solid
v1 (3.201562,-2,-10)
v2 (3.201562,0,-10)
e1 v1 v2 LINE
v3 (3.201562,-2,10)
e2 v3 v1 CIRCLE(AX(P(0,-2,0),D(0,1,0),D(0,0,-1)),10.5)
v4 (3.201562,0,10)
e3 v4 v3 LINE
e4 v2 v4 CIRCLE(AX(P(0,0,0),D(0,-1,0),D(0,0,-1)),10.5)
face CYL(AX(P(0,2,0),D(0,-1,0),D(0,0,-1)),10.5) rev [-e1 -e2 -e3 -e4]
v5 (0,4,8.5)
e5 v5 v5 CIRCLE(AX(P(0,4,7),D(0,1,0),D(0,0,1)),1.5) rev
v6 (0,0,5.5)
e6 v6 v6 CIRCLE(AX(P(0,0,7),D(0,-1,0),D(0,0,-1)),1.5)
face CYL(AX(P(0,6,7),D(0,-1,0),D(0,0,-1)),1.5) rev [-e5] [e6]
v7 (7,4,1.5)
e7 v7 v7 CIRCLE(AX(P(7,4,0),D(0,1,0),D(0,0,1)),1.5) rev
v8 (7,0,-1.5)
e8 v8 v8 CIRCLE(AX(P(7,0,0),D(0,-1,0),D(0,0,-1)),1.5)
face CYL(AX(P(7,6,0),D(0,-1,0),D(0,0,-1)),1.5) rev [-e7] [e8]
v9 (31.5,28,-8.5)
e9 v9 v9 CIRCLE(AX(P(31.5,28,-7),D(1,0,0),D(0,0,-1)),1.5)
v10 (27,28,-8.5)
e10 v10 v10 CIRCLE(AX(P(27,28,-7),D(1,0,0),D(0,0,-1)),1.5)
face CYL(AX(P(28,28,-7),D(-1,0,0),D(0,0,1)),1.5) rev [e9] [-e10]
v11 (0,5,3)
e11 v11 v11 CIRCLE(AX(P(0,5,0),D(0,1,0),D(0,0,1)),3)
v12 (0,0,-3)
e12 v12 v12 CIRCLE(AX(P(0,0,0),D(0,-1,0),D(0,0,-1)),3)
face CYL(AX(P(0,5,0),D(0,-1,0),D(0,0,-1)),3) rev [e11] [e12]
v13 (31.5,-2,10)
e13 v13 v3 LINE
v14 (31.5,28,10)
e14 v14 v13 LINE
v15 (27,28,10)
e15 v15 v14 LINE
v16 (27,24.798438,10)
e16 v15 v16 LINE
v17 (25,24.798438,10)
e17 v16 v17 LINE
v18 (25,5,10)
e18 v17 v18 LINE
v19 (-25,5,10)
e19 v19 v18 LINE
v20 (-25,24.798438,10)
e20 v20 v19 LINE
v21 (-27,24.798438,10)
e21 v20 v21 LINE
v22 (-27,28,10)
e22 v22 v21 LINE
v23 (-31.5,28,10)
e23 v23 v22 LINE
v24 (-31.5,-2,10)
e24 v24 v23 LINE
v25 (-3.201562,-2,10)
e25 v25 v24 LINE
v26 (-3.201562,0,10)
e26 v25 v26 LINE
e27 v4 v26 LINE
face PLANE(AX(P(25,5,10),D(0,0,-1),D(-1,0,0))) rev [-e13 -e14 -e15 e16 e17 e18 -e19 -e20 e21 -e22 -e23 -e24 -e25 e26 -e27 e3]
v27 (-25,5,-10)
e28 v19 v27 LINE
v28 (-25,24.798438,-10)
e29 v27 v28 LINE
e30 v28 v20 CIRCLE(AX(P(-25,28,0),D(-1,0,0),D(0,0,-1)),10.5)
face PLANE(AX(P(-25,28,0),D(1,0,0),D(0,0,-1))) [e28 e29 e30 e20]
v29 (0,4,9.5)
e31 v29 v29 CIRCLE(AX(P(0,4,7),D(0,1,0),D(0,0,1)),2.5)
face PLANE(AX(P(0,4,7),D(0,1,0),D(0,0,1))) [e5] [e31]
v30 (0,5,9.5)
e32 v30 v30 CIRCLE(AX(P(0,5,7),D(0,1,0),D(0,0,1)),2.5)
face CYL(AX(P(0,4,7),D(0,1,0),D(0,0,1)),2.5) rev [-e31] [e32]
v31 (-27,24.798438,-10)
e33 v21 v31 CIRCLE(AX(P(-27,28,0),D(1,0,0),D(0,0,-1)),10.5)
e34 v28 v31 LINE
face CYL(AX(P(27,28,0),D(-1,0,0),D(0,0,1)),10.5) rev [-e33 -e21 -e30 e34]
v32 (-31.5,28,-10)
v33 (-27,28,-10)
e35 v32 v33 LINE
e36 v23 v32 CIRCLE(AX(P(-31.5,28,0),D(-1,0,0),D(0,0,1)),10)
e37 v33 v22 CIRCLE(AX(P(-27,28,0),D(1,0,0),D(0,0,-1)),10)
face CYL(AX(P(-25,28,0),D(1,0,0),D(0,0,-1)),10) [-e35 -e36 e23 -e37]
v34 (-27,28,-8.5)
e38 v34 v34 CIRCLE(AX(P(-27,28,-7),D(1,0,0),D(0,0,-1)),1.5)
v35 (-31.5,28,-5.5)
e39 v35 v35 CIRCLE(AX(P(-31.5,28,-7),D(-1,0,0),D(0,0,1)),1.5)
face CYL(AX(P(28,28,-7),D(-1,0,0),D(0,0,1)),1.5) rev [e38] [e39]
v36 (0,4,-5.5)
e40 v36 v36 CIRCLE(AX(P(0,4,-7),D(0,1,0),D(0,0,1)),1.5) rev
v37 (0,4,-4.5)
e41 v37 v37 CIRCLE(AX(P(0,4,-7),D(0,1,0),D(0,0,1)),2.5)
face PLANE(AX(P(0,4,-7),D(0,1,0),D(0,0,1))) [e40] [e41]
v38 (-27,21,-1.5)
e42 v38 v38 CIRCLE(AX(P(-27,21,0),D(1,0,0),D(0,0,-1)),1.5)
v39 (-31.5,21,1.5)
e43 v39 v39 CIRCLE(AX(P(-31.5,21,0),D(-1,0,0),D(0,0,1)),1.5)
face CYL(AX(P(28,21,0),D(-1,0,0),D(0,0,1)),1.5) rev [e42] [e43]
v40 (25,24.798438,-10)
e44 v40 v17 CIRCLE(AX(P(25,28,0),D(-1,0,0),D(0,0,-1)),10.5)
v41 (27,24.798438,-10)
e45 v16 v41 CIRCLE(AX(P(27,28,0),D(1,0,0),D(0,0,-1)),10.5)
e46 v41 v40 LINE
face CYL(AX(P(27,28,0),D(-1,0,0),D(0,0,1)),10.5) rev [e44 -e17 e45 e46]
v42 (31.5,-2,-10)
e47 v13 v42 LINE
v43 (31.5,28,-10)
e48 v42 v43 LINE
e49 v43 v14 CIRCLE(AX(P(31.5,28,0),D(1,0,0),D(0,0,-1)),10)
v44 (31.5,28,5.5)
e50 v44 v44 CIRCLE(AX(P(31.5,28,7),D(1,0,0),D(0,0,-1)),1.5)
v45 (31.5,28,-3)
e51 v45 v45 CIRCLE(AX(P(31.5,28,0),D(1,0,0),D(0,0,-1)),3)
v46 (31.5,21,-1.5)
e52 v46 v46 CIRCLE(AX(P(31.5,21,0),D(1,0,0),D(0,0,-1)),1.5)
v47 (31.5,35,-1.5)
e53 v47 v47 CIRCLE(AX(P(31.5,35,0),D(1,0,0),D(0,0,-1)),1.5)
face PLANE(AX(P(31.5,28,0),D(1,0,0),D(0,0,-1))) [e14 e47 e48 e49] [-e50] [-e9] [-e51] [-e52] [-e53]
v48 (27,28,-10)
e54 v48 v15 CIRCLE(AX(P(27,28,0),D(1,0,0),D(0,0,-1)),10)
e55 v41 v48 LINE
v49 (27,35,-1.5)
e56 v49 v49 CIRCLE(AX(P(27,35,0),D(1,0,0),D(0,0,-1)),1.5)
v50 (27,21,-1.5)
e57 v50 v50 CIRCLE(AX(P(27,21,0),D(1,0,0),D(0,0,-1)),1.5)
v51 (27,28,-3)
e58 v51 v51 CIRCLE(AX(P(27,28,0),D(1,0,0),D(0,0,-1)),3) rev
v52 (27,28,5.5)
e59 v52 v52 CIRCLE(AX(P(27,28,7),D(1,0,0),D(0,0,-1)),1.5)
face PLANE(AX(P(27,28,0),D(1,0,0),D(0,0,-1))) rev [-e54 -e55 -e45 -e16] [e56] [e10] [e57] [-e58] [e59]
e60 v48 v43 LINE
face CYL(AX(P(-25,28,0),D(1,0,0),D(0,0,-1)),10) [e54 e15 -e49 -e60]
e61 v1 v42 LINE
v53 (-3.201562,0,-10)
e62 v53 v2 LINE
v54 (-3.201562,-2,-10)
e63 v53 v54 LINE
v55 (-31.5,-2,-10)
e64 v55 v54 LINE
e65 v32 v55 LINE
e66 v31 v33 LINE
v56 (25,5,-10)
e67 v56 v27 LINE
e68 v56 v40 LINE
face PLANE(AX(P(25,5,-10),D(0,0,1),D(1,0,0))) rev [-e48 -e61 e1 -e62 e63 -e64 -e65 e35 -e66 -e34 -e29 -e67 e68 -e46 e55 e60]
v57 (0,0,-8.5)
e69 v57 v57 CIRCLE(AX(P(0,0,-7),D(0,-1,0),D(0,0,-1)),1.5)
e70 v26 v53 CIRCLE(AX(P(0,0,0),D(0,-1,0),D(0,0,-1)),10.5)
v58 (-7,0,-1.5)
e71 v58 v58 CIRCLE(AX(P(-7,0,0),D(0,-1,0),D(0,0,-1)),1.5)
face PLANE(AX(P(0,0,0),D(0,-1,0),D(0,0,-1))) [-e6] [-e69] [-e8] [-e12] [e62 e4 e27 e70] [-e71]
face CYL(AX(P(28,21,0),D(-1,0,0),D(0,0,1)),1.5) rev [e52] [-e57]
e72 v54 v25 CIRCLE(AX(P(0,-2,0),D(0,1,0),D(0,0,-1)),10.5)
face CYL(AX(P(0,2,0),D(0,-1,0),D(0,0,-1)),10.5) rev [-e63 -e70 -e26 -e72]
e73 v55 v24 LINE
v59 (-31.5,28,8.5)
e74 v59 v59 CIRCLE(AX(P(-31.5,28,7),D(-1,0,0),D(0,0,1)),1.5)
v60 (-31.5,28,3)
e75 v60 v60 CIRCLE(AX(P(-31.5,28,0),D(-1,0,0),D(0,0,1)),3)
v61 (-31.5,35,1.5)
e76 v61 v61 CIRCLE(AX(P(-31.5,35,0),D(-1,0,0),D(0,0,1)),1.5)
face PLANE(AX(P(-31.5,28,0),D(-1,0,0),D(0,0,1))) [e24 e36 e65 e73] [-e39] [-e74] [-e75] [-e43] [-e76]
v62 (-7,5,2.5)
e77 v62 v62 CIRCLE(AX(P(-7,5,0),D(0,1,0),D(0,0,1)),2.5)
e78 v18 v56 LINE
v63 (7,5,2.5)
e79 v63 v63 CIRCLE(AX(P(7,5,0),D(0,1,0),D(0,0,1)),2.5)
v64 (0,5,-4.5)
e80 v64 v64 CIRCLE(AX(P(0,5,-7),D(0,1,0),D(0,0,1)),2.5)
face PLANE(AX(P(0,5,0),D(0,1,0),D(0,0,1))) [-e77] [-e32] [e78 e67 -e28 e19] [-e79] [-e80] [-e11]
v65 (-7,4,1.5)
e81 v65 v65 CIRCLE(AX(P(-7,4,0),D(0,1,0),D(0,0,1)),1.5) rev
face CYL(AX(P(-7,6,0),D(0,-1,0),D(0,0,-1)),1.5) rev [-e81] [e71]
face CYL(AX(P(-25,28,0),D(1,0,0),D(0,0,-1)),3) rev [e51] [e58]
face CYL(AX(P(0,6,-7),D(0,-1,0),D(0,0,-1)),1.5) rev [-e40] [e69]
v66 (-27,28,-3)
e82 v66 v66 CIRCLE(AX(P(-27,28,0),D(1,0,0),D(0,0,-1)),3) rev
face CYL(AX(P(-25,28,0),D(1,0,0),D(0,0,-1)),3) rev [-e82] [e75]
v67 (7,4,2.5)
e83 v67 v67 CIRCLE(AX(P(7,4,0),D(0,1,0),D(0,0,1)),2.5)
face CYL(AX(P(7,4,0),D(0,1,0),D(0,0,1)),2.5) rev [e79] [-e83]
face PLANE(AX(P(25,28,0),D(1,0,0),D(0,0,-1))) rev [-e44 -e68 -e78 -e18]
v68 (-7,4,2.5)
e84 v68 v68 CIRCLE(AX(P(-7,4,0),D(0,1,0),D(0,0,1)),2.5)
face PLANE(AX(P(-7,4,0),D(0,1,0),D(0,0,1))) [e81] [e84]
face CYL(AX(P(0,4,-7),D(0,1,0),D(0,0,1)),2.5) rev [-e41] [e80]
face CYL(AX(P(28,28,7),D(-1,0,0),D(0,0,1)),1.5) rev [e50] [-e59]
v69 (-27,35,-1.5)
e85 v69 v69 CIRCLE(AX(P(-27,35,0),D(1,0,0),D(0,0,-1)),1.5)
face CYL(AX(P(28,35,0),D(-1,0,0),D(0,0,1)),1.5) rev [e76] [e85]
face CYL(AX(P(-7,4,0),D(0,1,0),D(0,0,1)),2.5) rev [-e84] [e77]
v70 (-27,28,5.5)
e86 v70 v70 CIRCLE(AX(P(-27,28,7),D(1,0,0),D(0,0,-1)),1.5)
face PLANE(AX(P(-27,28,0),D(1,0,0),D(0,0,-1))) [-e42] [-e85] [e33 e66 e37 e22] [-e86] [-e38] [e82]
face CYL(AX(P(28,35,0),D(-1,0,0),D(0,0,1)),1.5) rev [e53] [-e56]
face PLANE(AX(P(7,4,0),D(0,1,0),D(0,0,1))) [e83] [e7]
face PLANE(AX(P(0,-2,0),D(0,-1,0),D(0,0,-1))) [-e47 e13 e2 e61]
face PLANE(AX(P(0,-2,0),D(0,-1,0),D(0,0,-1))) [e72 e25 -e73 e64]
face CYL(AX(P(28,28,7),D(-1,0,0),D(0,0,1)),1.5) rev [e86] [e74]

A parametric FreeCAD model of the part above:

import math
import FreeCAD as App
import Part
import Sketcher

V = App.Vector
Q = App.Units.Quantity


def add_polygon(sketch, points):
    """Adds a closed chain of lines whose ends are joined by coincident constraints."""
    first, n = sketch.GeometryCount, len(points)
    for a, b in zip(points, points[1:] + points[:1]):
        sketch.addGeometry(Part.LineSegment(App.Vector(*a, 0), App.Vector(*b, 0)), False)
    for i in range(n):
        sketch.addConstraint(Sketcher.Constraint("Coincident", first + i, 2, first + (i + 1) % n, 1))

doc = App.newDocument("Part")
params = doc.addObject("Spreadsheet::Sheet", "Params")
for row, (alias, value) in enumerate([
    ("sketch1_diameter", "6 mm"),
    ("sketch1_width", "50 mm"),
    ("sketch1_height", "20 mm"),
    ("pad1_length", "5 mm"),
    ("sketch2_diameter", "21 mm"),
    ("pocket1_length", "2 mm"),
    ("sketch3_diameter", "3 mm"),
    ("pocket2_length", "4 mm"),
    ("sketch4_diameter", "5 mm"),
    ("pocket3_length", "1 mm"),
    ("sketch5_width", "5 mm"),
    ("sketch5_height", "20 mm"),
    ("pad2_length", "33 mm"),
    ("sketch6_diameter", "6 mm"),
    ("sketch6_radius", "10 mm"),
    ("pocket4_length", "50 mm"),
    ("sketch7_diameter", "21 mm"),
    ("pocket5_length", "42 mm"),
    ("pocket5_length2", "2 mm"),
    ("sketch8_diameter", "3 mm"),
    ("sketch9_diameter", "3 mm"),
    ("sketch9_diameter2", "6 mm"),
    ("sketch9_radius", "10 mm"),
    ("sketch9_width", "28 mm"),
    ("pad3_length", "5 mm"),
    ("sketch10_diameter", "3 mm"),
    ("sketch10_diameter2", "6 mm"),
    ("sketch10_radius", "10 mm"),
    ("sketch10_width", "28 mm"),
    ("pad4_length", "5 mm"),
    ("sketch11_radius", "10.5 mm"),
    ("sketch11_height", "20 mm"),
    ("pocket7_length", "45 mm"),
    ("pocket7_length2", "5 mm"),
    ("sketch12_radius", "10 mm"),
    ("sketch12_radius2", "10.5 mm"),
    ("pocket8_length", "49 mm"),
    ("pocket8_length2", "5 mm"),
    ("sketch13_radius", "10.5 mm"),
    ("sketch13_height", "20 mm"),
    ("pad5_length", "2 mm"),
    ("sketch14_diameter", "3 mm"),
    ("sketch14_diameter2", "6 mm"),
    ("sketch14_radius", "10.5 mm"),
    ("pad6_length", "2 mm"),
    ("sketch15_diameter", "3 mm"),
    ("sketch15_diameter2", "6 mm"),
    ("sketch15_radius", "10 mm"),
    ("sketch15_width", "30 mm"),
    ("pad7_length", "1.5 mm"),
    ("sketch16_diameter", "3 mm"),
    ("sketch16_diameter2", "6 mm"),
    ("sketch16_radius", "10 mm"),
    ("sketch16_width", "30 mm"),
    ("pad8_length", "1.5 mm"),
], start=1):
    params.set(f"A{row}", alias)
    params.set(f"B{row}", "=" + value)
    params.setAlias(f"B{row}", alias)

body = doc.addObject("PartDesign::Body", "Body")

sketch1 = body.newObject("Sketcher::SketchObject", "Sketch")
sketch1.AttachmentSupport = (doc.getObject("XZ_Plane"), [""])
sketch1.MapMode = "FlatFace"
add_polygon(sketch1, [(-25, -10), (-25, 10), (25, 10), (25, -10)])
sketch1.addGeometry(Part.Circle(V(0, 0, 0), V(0, 0, 1), 3), False)
sketch1.addConstraint(Sketcher.Constraint("Vertical", 0))
sketch1.addConstraint(Sketcher.Constraint("Horizontal", 1))
sketch1.addConstraint(Sketcher.Constraint("Vertical", 2))
sketch1.addConstraint(Sketcher.Constraint("Horizontal", 3))
sketch1.addConstraint(Sketcher.Constraint("Coincident", 4, 3, -1, 1))
sketch1.addConstraint(Sketcher.Constraint("Symmetric", 0, 2, 2, 2, -1, 1))
sketch1.addConstraint(Sketcher.Constraint("Diameter", 4, Q("6 mm")))
sketch1.addConstraint(Sketcher.Constraint("DistanceX", 1, 1, 1, 2, Q("50 mm")))
sketch1.addConstraint(Sketcher.Constraint("DistanceY", 0, 1, 0, 2, Q("20 mm")))
sketch1.setExpression("Constraints[10]", "Params.sketch1_diameter")
sketch1.setExpression("Constraints[11]", "Params.sketch1_width")
sketch1.setExpression("Constraints[12]", "Params.sketch1_height")
pad1 = body.newObject("PartDesign::Pad", "Pad")
pad1.Profile = sketch1
pad1.setExpression("Length", "Params.pad1_length")
pad1.Reversed = True

sketch2 = body.newObject("Sketcher::SketchObject", "Sketch001")
sketch2.AttachmentSupport = (doc.getObject("XZ_Plane"), [""])
sketch2.MapMode = "FlatFace"
sketch2.addGeometry(Part.Circle(V(0, 0, 0), V(0, 0, 1), 10), False)
sketch2.addConstraint(Sketcher.Constraint("Coincident", 0, 3, -1, 1))
sketch2.addConstraint(Sketcher.Constraint("Diameter", 0, Q("21 mm")))
sketch2.setExpression("Constraints[1]", "Params.sketch2_diameter")
pocket1 = body.newObject("PartDesign::Pocket", "Pocket")
pocket1.Profile = sketch2
pocket1.setExpression("Length", "Params.pocket1_length")

sketch3 = body.newObject("Sketcher::SketchObject", "Sketch002")
sketch3.AttachmentSupport = (doc.getObject("XZ_Plane"), [""])
sketch3.MapMode = "FlatFace"
sketch3.AttachmentOffset = App.Placement(V(0, 0, -2), App.Rotation())
sketch3.addGeometry(Part.Circle(V(0, 7, 0), V(0, 0, 1), 1.5), False)
sketch3.addGeometry(Part.Circle(V(7, 0, 0), V(0, 0, 1), 1.5), False)
sketch3.addGeometry(Part.Circle(V(0, -7, 0), V(0, 0, 1), 1.5), False)
sketch3.addGeometry(Part.Circle(V(-7, 0, 0), V(0, 0, 1), 1.5), False)
sketch3.addConstraint(Sketcher.Constraint("Equal", 0, 1))
sketch3.addConstraint(Sketcher.Constraint("Equal", 1, 2))
sketch3.addConstraint(Sketcher.Constraint("Equal", 2, 3))
sketch3.addConstraint(Sketcher.Constraint("Symmetric", 0, 3, 2, 3, -1, 1))
sketch3.addConstraint(Sketcher.Constraint("Symmetric", 1, 3, 3, 3, -1, 1))
sketch3.addConstraint(Sketcher.Constraint("PointOnObject", 0, 3, -2))
sketch3.addConstraint(Sketcher.Constraint("PointOnObject", 1, 3, -1))
sketch3.addConstraint(Sketcher.Constraint("Diameter", 0, Q("3 mm")))
sketch3.addConstraint(Sketcher.Constraint("DistanceY", -1, 1, 0, 3, Q("7 mm")))
sketch3.addConstraint(Sketcher.Constraint("DistanceX", -1, 1, 1, 3, Q("7 mm")))
sketch3.setExpression("Constraints[7]", "Params.sketch3_diameter")
pocket2 = body.newObject("PartDesign::Pocket", "Pocket001")
pocket2.Profile = sketch3
pocket2.setExpression("Length", "Params.pocket2_length")

sketch4 = body.newObject("Sketcher::SketchObject", "Sketch003")
sketch4.AttachmentSupport = (doc.getObject("XZ_Plane"), [""])
sketch4.MapMode = "FlatFace"
sketch4.AttachmentOffset = App.Placement(V(0, 0, -5), App.Rotation())
sketch4.addGeometry(Part.Circle(V(0, -7, 0), V(0, 0, 1), 2.5), False)
sketch4.addGeometry(Part.Circle(V(7, 0, 0), V(0, 0, 1), 2.5), False)
sketch4.addGeometry(Part.Circle(V(0, 7, 0), V(0, 0, 1), 2.5), False)
sketch4.addGeometry(Part.Circle(V(-7, 0, 0), V(0, 0, 1), 2.5), False)
sketch4.addConstraint(Sketcher.Constraint("Equal", 0, 1))
sketch4.addConstraint(Sketcher.Constraint("Equal", 1, 2))
sketch4.addConstraint(Sketcher.Constraint("Equal", 2, 3))
sketch4.addConstraint(Sketcher.Constraint("Symmetric", 0, 3, 2, 3, -1, 1))
sketch4.addConstraint(Sketcher.Constraint("Symmetric", 1, 3, 3, 3, -1, 1))
sketch4.addConstraint(Sketcher.Constraint("PointOnObject", 0, 3, -2))
sketch4.addConstraint(Sketcher.Constraint("PointOnObject", 1, 3, -1))
sketch4.addConstraint(Sketcher.Constraint("Diameter", 0, Q("5 mm")))
sketch4.addConstraint(Sketcher.Constraint("DistanceY", 0, 3, -1, 1, Q("7 mm")))
sketch4.addConstraint(Sketcher.Constraint("DistanceX", -1, 1, 1, 3, Q("7 mm")))
sketch4.setExpression("Constraints[7]", "Params.sketch4_diameter")
pocket3 = body.newObject("PartDesign::Pocket", "Pocket002")
pocket3.Profile = sketch4
pocket3.setExpression("Length", "Params.pocket3_length")
pocket3.Reversed = True

sketch5 = body.newObject("Sketcher::SketchObject", "Sketch004")
sketch5.AttachmentSupport = (doc.getObject("XZ_Plane"), [""])
sketch5.MapMode = "FlatFace"
sketch5.AttachmentOffset = App.Placement(V(0, 0, -5), App.Rotation())
add_polygon(sketch5, [(20, -10), (20, 10), (25, 10), (25, -10)])
add_polygon(sketch5, [(-25, -10), (-25, 10), (-20, 10), (-20, -10)])
sketch5.addConstraint(Sketcher.Constraint("Vertical", 0))
sketch5.addConstraint(Sketcher.Constraint("Horizontal", 1))
sketch5.addConstraint(Sketcher.Constraint("Vertical", 2))
sketch5.addConstraint(Sketcher.Constraint("Horizontal", 3))
sketch5.addConstraint(Sketcher.Constraint("Vertical", 4))
sketch5.addConstraint(Sketcher.Constraint("Horizontal", 5))
sketch5.addConstraint(Sketcher.Constraint("Vertical", 6))
sketch5.addConstraint(Sketcher.Constraint("Horizontal", 7))
sketch5.addConstraint(Sketcher.Constraint("Symmetric", 2, 2, 4, 2, -1, 1))
sketch5.addConstraint(Sketcher.Constraint("Symmetric", 0, 2, 6, 2, -1, 1))
sketch5.addConstraint(Sketcher.Constraint("Horizontal", 1, 2, 4, 2))
sketch5.addConstraint(Sketcher.Constraint("DistanceX", 1, 1, 1, 2, Q("5 mm")))
sketch5.addConstraint(Sketcher.Constraint("DistanceY", 0, 1, 0, 2, Q("20 mm")))
sketch5.addConstraint(Sketcher.Constraint("DistanceX", -1, 1, 0, 2, Q("20 mm")))
sketch5.setExpression("Constraints[19]", "Params.sketch5_width")
sketch5.setExpression("Constraints[20]", "Params.sketch5_height")
pad2 = body.newObject("PartDesign::Pad", "Pad001")
pad2.Profile = sketch5
pad2.setExpression("Length", "Params.pad2_length")
pad2.Reversed = True

sketch6 = body.newObject("Sketcher::SketchObject", "Sketch005")
sketch6.AttachmentSupport = (doc.getObject("YZ_Plane"), [""])
sketch6.MapMode = "FlatFace"
sketch6.AttachmentOffset = App.Placement(V(0, 0, 25), App.Rotation())
sketch6.addGeometry(Part.Circle(V(28, 0, 0), V(0, 0, 1), 3), False)
sketch6.addGeometry(Part.LineSegment(V(28, -10, 0), V(31.2, -21.9, 0)), False)
sketch6.addGeometry(Part.LineSegment(V(31.2, -21.9, 0), V(40.9, -12.9, 0)), False)
sketch6.addGeometry(Part.LineSegment(V(40.9, -12.9, 0), V(40, 22.2, 0)), False)
sketch6.addGeometry(Part.LineSegment(V(40, 22.2, 0), V(28, 10, 0)), False)
sketch6.addGeometry(Part.ArcOfCircle(Part.Circle(V(28, 0, 0), V(0, 0, 1), 10), math.radians(-90), math.radians(90)), False)
sketch6.addConstraint(Sketcher.Constraint("Coincident", 1, 2, 2, 1))
sketch6.addConstraint(Sketcher.Constraint("Coincident", 2, 2, 3, 1))
sketch6.addConstraint(Sketcher.Constraint("Coincident", 3, 2, 4, 1))
sketch6.addConstraint(Sketcher.Constraint("Coincident", 4, 2, 5, 2))
sketch6.addConstraint(Sketcher.Constraint("Coincident", 5, 1, 1, 1))
sketch6.addConstraint(Sketcher.Constraint("Coincident", 5, 3, 0, 3))
sketch6.addConstraint(Sketcher.Constraint("Symmetric", 4, 2, 5, 1, -1))
sketch6.addConstraint(Sketcher.Constraint("Vertical", 5, 3, 4, 2))
sketch6.addConstraint(Sketcher.Constraint("Diameter", 0, Q("6 mm")))
sketch6.addConstraint(Sketcher.Constraint("Radius", 5, Q("10 mm")))
sketch6.addConstraint(Sketcher.Constraint("DistanceX", -1, 1, 0, 3, Q("28 mm")))
sketch6.addConstraint(Sketcher.Constraint("DistanceX", 1, 2, 2, 2, Q("9.691699 mm")))
sketch6.addConstraint(Sketcher.Constraint("DistanceY", -1, 1, 3, 2, Q("22.207422 mm")))
sketch6.addConstraint(Sketcher.Constraint("DistanceY", 1, 2, 2, 2, Q("9.009819 mm")))
sketch6.addConstraint(Sketcher.Constraint("DistanceX", 3, 2, 2, 2, Q("0.901261 mm")))
sketch6.addConstraint(Sketcher.Constraint("Distance", 1, Q("12.327444 mm")))
sketch6.addConstraint(Sketcher.Constraint("Distance", 3, Q("35.108158 mm")))
sketch6.setExpression("Constraints[8]", "Params.sketch6_diameter")
sketch6.setExpression("Constraints[9]", "Params.sketch6_radius")
pocket4 = body.newObject("PartDesign::Pocket", "Pocket003")
pocket4.Profile = sketch6
pocket4.setExpression("Length", "Params.pocket4_length")

sketch7 = body.newObject("Sketcher::SketchObject", "Sketch006")
sketch7.AttachmentSupport = (doc.getObject("YZ_Plane"), [""])
sketch7.MapMode = "FlatFace"
sketch7.AttachmentOffset = App.Placement(V(0, 0, -20), App.Rotation())
sketch7.addGeometry(Part.Circle(V(28, 0, 0), V(0, 0, 1), 10), False)
sketch7.addConstraint(Sketcher.Constraint("PointOnObject", 0, 3, -1))
sketch7.addConstraint(Sketcher.Constraint("Diameter", 0, Q("21 mm")))
sketch7.addConstraint(Sketcher.Constraint("DistanceX", -1, 1, 0, 3, Q("28 mm")))
sketch7.setExpression("Constraints[1]", "Params.sketch7_diameter")
pocket5 = body.newObject("PartDesign::Pocket", "Pocket004")
pocket5.Profile = sketch7
pocket5.Type = "TwoLengths"
pocket5.setExpression("Length", "Params.pocket5_length")
pocket5.setExpression("Length2", "Params.pocket5_length2")
pocket5.Reversed = True

sketch8 = body.newObject("Sketcher::SketchObject", "Sketch007")
sketch8.AttachmentSupport = (doc.getObject("YZ_Plane"), [""])
sketch8.MapMode = "FlatFace"
sketch8.AttachmentOffset = App.Placement(V(0, 0, -22), App.Rotation())
sketch8.addGeometry(Part.Circle(V(35, 0, 0), V(0, 0, 1), 1.5), False)
sketch8.addGeometry(Part.Circle(V(28, -7, 0), V(0, 0, 1), 1.5), False)
sketch8.addGeometry(Part.Circle(V(21, 0, 0), V(0, 0, 1), 1.5), False)
sketch8.addGeometry(Part.Circle(V(28, 7, 0), V(0, 0, 1), 1.5), False)
sketch8.addConstraint(Sketcher.Constraint("Equal", 0, 1))
sketch8.addConstraint(Sketcher.Constraint("Equal", 1, 2))
sketch8.addConstraint(Sketcher.Constraint("Equal", 2, 3))
sketch8.addConstraint(Sketcher.Constraint("Symmetric", 1, 3, 3, 3, -1))
sketch8.addConstraint(Sketcher.Constraint("PointOnObject", 0, 3, -1))
sketch8.addConstraint(Sketcher.Constraint("PointOnObject", 2, 3, -1))
sketch8.addConstraint(Sketcher.Constraint("Diameter", 0, Q("3 mm")))
sketch8.addConstraint(Sketcher.Constraint("DistanceX", -1, 1, 0, 3, Q("35 mm")))
sketch8.addConstraint(Sketcher.Constraint("DistanceX", -1, 1, 1, 3, Q("28 mm")))
sketch8.addConstraint(Sketcher.Constraint("DistanceY", 1, 3, -1, 1, Q("7 mm")))
sketch8.addConstraint(Sketcher.Constraint("DistanceX", -1, 1, 2, 3, Q("21 mm")))
sketch8.setExpression("Constraints[6]", "Params.sketch8_diameter")
pocket6 = body.newObject("PartDesign::Pocket", "Pocket005")
pocket6.Profile = sketch8
pocket6.Type = "ThroughAll"
pocket6.Midplane = True

sketch9 = body.newObject("Sketcher::SketchObject", "Sketch008")
sketch9.AttachmentSupport = (doc.getObject("YZ_Plane"), [""])
sketch9.MapMode = "FlatFace"
sketch9.AttachmentOffset = App.Placement(V(0, 0, 25), App.Rotation())
sketch9.addGeometry(Part.LineSegment(V(0, -10, 0), V(28, -10, 0)), False)
sketch9.addGeometry(Part.ArcOfCircle(Part.Circle(V(28, 0, 0), V(0, 0, 1), 10), math.radians(-90), math.radians(90)), False)
sketch9.addGeometry(Part.LineSegment(V(28, 10, 0), V(0, 10, 0)), False)
sketch9.addGeometry(Part.LineSegment(V(0, 10, 0), V(0, -10, 0)), False)
sketch9.addGeometry(Part.Circle(V(21, 0, 0), V(0, 0, 1), 1.5), False)
sketch9.addGeometry(Part.Circle(V(28, 7, 0), V(0, 0, 1), 1.5), False)
sketch9.addGeometry(Part.Circle(V(28, 0, 0), V(0, 0, 1), 3), False)
sketch9.addGeometry(Part.Circle(V(28, -7, 0), V(0, 0, 1), 1.5), False)
sketch9.addGeometry(Part.Circle(V(35, 0, 0), V(0, 0, 1), 1.5), False)
sketch9.addConstraint(Sketcher.Constraint("Tangent", 0, 2, 1, 1))
sketch9.addConstraint(Sketcher.Constraint("Tangent", 1, 2, 2, 1))
sketch9.addConstraint(Sketcher.Constraint("Coincident", 2, 2, 3, 1))
sketch9.addConstraint(Sketcher.Constraint("Coincident", 3, 2, 0, 1))
sketch9.addConstraint(Sketcher.Constraint("Horizontal", 0))
sketch9.addConstraint(Sketcher.Constraint("Horizontal", 2))
sketch9.addConstraint(Sketcher.Constraint("Vertical", 3))
sketch9.addConstraint(Sketcher.Constraint("Coincident", 6, 3, 1, 3))
sketch9.addConstraint(Sketcher.Constraint("Equal", 4, 5))
sketch9.addConstraint(Sketcher.Constraint("Equal", 5, 7))
sketch9.addConstraint(Sketcher.Constraint("Equal", 7, 8))
sketch9.addConstraint(Sketcher.Constraint("Symmetric", 2, 2, 3, 2, -1, 1))
sketch9.addConstraint(Sketcher.Constraint("Symmetric", 5, 3, 7, 3, -1))
sketch9.addConstraint(Sketcher.Constraint("PointOnObject", 4, 3, -1))
sketch9.addConstraint(Sketcher.Constraint("PointOnObject", 8, 3, -1))
sketch9.addConstraint(Sketcher.Constraint("Vertical", 1, 3, 5, 3))
sketch9.addConstraint(Sketcher.Constraint("Diameter", 4, Q("3 mm")))
sketch9.addConstraint(Sketcher.Constraint("Diameter", 6, Q("6 mm")))
sketch9.addConstraint(Sketcher.Constraint("Radius", 1, Q("10 mm")))
sketch9.addConstraint(Sketcher.Constraint("DistanceX", 0, 1, 0, 2, Q("28 mm")))
sketch9.addConstraint(Sketcher.Constraint("DistanceX", -1, 1, 4, 3, Q("21 mm")))
sketch9.addConstraint(Sketcher.Constraint("DistanceY", -1, 1, 5, 3, Q("7 mm")))
sketch9.addConstraint(Sketcher.Constraint("DistanceX", -1, 1, 8, 3, Q("35 mm")))
sketch9.setExpression("Constraints[16]", "Params.sketch9_diameter")
sketch9.setExpression("Constraints[17]", "Params.sketch9_diameter2")
sketch9.setExpression("Constraints[18]", "Params.sketch9_radius")
sketch9.setExpression("Constraints[19]", "Params.sketch9_width")
pad3 = body.newObject("PartDesign::Pad", "Pad002")
pad3.Profile = sketch9
pad3.setExpression("Length", "Params.pad3_length")

sketch10 = body.newObject("Sketcher::SketchObject", "Sketch009")
sketch10.AttachmentSupport = (doc.getObject("YZ_Plane"), [""])
sketch10.MapMode = "FlatFace"
sketch10.AttachmentOffset = App.Placement(V(0, 0, -25), App.Rotation())
sketch10.addGeometry(Part.LineSegment(V(0, 10, 0), V(28, 10, 0)), False)
sketch10.addGeometry(Part.ArcOfCircle(Part.Circle(V(28, 0, 0), V(0, 0, 1), 10), math.radians(-90), math.radians(90)), False)
sketch10.addGeometry(Part.LineSegment(V(28, -10, 0), V(0, -10, 0)), False)
sketch10.addGeometry(Part.LineSegment(V(0, -10, 0), V(0, 10, 0)), False)
sketch10.addGeometry(Part.Circle(V(21, 0, 0), V(0, 0, 1), 1.5), False)
sketch10.addGeometry(Part.Circle(V(28, -7, 0), V(0, 0, 1), 1.5), False)
sketch10.addGeometry(Part.Circle(V(28, 0, 0), V(0, 0, 1), 3), False)
sketch10.addGeometry(Part.Circle(V(28, 7, 0), V(0, 0, 1), 1.5), False)
sketch10.addGeometry(Part.Circle(V(35, 0, 0), V(0, 0, 1), 1.5), False)
sketch10.addConstraint(Sketcher.Constraint("Tangent", 0, 2, 1, 2))
sketch10.addConstraint(Sketcher.Constraint("Tangent", 1, 1, 2, 1))
sketch10.addConstraint(Sketcher.Constraint("Coincident", 2, 2, 3, 1))
sketch10.addConstraint(Sketcher.Constraint("Coincident", 3, 2, 0, 1))
sketch10.addConstraint(Sketcher.Constraint("Horizontal", 0))
sketch10.addConstraint(Sketcher.Constraint("Horizontal", 2))
sketch10.addConstraint(Sketcher.Constraint("Vertical", 3))
sketch10.addConstraint(Sketcher.Constraint("Coincident", 6, 3, 1, 3))
sketch10.addConstraint(Sketcher.Constraint("Equal", 4, 5))
sketch10.addConstraint(Sketcher.Constraint("Equal", 5, 7))
sketch10.addConstraint(Sketcher.Constraint("Equal", 7, 8))
sketch10.addConstraint(Sketcher.Constraint("Symmetric", 2, 2, 3, 2, -1, 1))
sketch10.addConstraint(Sketcher.Constraint("Symmetric", 5, 3, 7, 3, -1))
sketch10.addConstraint(Sketcher.Constraint("PointOnObject", 4, 3, -1))
sketch10.addConstraint(Sketcher.Constraint("PointOnObject", 8, 3, -1))
sketch10.addConstraint(Sketcher.Constraint("Vertical", 1, 3, 5, 3))
sketch10.addConstraint(Sketcher.Constraint("Diameter", 4, Q("3 mm")))
sketch10.addConstraint(Sketcher.Constraint("Diameter", 6, Q("6 mm")))
sketch10.addConstraint(Sketcher.Constraint("Radius", 1, Q("10 mm")))
sketch10.addConstraint(Sketcher.Constraint("DistanceX", 0, 1, 0, 2, Q("28 mm")))
sketch10.addConstraint(Sketcher.Constraint("DistanceX", -1, 1, 4, 3, Q("21 mm")))
sketch10.addConstraint(Sketcher.Constraint("DistanceY", 5, 3, -1, 1, Q("7 mm")))
sketch10.addConstraint(Sketcher.Constraint("DistanceX", -1, 1, 8, 3, Q("35 mm")))
sketch10.setExpression("Constraints[16]", "Params.sketch10_diameter")
sketch10.setExpression("Constraints[17]", "Params.sketch10_diameter2")
sketch10.setExpression("Constraints[18]", "Params.sketch10_radius")
sketch10.setExpression("Constraints[19]", "Params.sketch10_width")
pad4 = body.newObject("PartDesign::Pad", "Pad003")
pad4.Profile = sketch10
pad4.setExpression("Length", "Params.pad4_length")
pad4.Reversed = True

sketch11 = body.newObject("Sketcher::SketchObject", "Sketch010")
sketch11.AttachmentSupport = (doc.getObject("YZ_Plane"), [""])
sketch11.MapMode = "FlatFace"
sketch11.AttachmentOffset = App.Placement(V(0, 0, -20), App.Rotation())
sketch11.addGeometry(Part.LineSegment(V(25, 10, 0), V(5, 10, 0)), False)
sketch11.addGeometry(Part.LineSegment(V(5, 10, 0), V(5, -10, 0)), False)
sketch11.addGeometry(Part.LineSegment(V(5, -10, 0), V(25, -10, 0)), False)
sketch11.addGeometry(Part.ArcOfCircle(Part.Circle(V(28, 0, 0), V(0, 0, 1), 10), math.radians(108), math.radians(252)), False)
sketch11.addConstraint(Sketcher.Constraint("Coincident", 0, 2, 1, 1))
sketch11.addConstraint(Sketcher.Constraint("Coincident", 1, 2, 2, 1))
sketch11.addConstraint(Sketcher.Constraint("Coincident", 2, 2, 3, 2))
sketch11.addConstraint(Sketcher.Constraint("Coincident", 3, 1, 0, 1))
sketch11.addConstraint(Sketcher.Constraint("Horizontal", 0))
sketch11.addConstraint(Sketcher.Constraint("Vertical", 1))
sketch11.addConstraint(Sketcher.Constraint("Horizontal", 2))
sketch11.addConstraint(Sketcher.Constraint("Symmetric", 2, 2, 3, 1, -1))
sketch11.addConstraint(Sketcher.Constraint("Radius", 3, Q("10.5 mm")))
sketch11.addConstraint(Sketcher.Constraint("DistanceY", 1, 2, 1, 1, Q("20 mm")))
sketch11.addConstraint(Sketcher.Constraint("DistanceX", -1, 1, 3, 3, Q("28 mm")))
sketch11.addConstraint(Sketcher.Constraint("DistanceX", -1, 1, 0, 2, Q("5 mm")))
sketch11.setExpression("Constraints[8]", "Params.sketch11_radius")
sketch11.setExpression("Constraints[9]", "Params.sketch11_height")
pocket7 = body.newObject("PartDesign::Pocket", "Pocket006")
pocket7.Profile = sketch11
pocket7.Type = "TwoLengths"
pocket7.setExpression("Length", "Params.pocket7_length")
pocket7.setExpression("Length2", "Params.pocket7_length2")
pocket7.Reversed = True

sketch12 = body.newObject("Sketcher::SketchObject", "Sketch011")
sketch12.AttachmentSupport = (doc.getObject("YZ_Plane"), [""])
sketch12.MapMode = "FlatFace"
sketch12.AttachmentOffset = App.Placement(V(0, 0, -22), App.Rotation())
sketch12.addGeometry(Part.LineSegment(V(28, 10, 0), V(24.8, 10, 0)), False)
sketch12.addGeometry(Part.ArcOfCircle(Part.Circle(V(28, 0, 0), V(0, 0, 1), 10.5), math.radians(108), math.radians(252)), False)
sketch12.addGeometry(Part.LineSegment(V(24.8, -10, 0), V(28, -10, 0)), False)
sketch12.addGeometry(Part.ArcOfCircle(Part.Circle(V(28, 0, 0), V(0, 0, 1), 10), math.radians(-90), math.radians(90)), False)
sketch12.addConstraint(Sketcher.Constraint("Coincident", 0, 2, 1, 1))
sketch12.addConstraint(Sketcher.Constraint("Coincident", 1, 2, 2, 1))
sketch12.addConstraint(Sketcher.Constraint("Tangent", 2, 2, 3, 1))
sketch12.addConstraint(Sketcher.Constraint("Tangent", 3, 2, 0, 1))
sketch12.addConstraint(Sketcher.Constraint("Horizontal", 0))
sketch12.addConstraint(Sketcher.Constraint("Horizontal", 2))
sketch12.addConstraint(Sketcher.Constraint("Coincident", 3, 3, 1, 3))
sketch12.addConstraint(Sketcher.Constraint("PointOnObject", 1, 3, -1))
sketch12.addConstraint(Sketcher.Constraint("Radius", 3, Q("10 mm")))
sketch12.addConstraint(Sketcher.Constraint("Radius", 1, Q("10.5 mm")))
sketch12.addConstraint(Sketcher.Constraint("DistanceX", -1, 1, 1, 3, Q("28 mm")))
sketch12.setExpression("Constraints[8]", "Params.sketch12_radius")
sketch12.setExpression("Constraints[9]", "Params.sketch12_radius2")
pocket8 = body.newObject("PartDesign::Pocket", "Pocket007")
pocket8.Profile = sketch12
pocket8.Type = "TwoLengths"
pocket8.setExpression("Length", "Params.pocket8_length")
pocket8.setExpression("Length2", "Params.pocket8_length2")
pocket8.Reversed = True

sketch13 = body.newObject("Sketcher::SketchObject", "Sketch012")
sketch13.AttachmentSupport = (doc.getObject("XZ_Plane"), [""])
sketch13.MapMode = "FlatFace"
sketch13.addGeometry(Part.LineSegment(V(30, 10, 0), V(3, 10, 0)), False)
sketch13.addGeometry(Part.ArcOfCircle(Part.Circle(V(0, 0, 0), V(0, 0, 1), 10), math.radians(-72), math.radians(72)), False)
sketch13.addGeometry(Part.LineSegment(V(3, -10, 0), V(30, -10, 0)), False)
sketch13.addGeometry(Part.LineSegment(V(30, -10, 0), V(30, 10, 0)), False)
sketch13.addGeometry(Part.LineSegment(V(-30, -10, 0), V(-3, -10, 0)), False)
sketch13.addGeometry(Part.ArcOfCircle(Part.Circle(V(0, 0, 0), V(0, 0, 1), 10), math.radians(108), math.radians(252)), False)
sketch13.addGeometry(Part.LineSegment(V(-3, 10, 0), V(-30, 10, 0)), False)
sketch13.addGeometry(Part.LineSegment(V(-30, 10, 0), V(-30, -10, 0)), False)
sketch13.addConstraint(Sketcher.Constraint("Coincident", 0, 2, 1, 2))
sketch13.addConstraint(Sketcher.Constraint("Coincident", 1, 1, 2, 1))
sketch13.addConstraint(Sketcher.Constraint("Coincident", 2, 2, 3, 1))
sketch13.addConstraint(Sketcher.Constraint("Coincident", 3, 2, 0, 1))
sketch13.addConstraint(Sketcher.Constraint("Coincident", 4, 2, 5, 2))
sketch13.addConstraint(Sketcher.Constraint("Coincident", 5, 1, 6, 1))
sketch13.addConstraint(Sketcher.Constraint("Coincident", 6, 2, 7, 1))
sketch13.addConstraint(Sketcher.Constraint("Coincident", 7, 2, 4, 1))
sketch13.addConstraint(Sketcher.Constraint("Horizontal", 0))
sketch13.addConstraint(Sketcher.Constraint("Horizontal", 2))
sketch13.addConstraint(Sketcher.Constraint("Vertical", 3))
sketch13.addConstraint(Sketcher.Constraint("Horizontal", 4))
sketch13.addConstraint(Sketcher.Constraint("Horizontal", 6))
sketch13.addConstraint(Sketcher.Constraint("Vertical", 7))
sketch13.addConstraint(Sketcher.Constraint("Coincident", 1, 3, -1, 1))
sketch13.addConstraint(Sketcher.Constraint("Coincident", 5, 3, -1, 1))
sketch13.addConstraint(Sketcher.Constraint("Equal", 1, 5))
sketch13.addConstraint(Sketcher.Constraint("Symmetric", 2, 2, 6, 2, -1, 1))
sketch13.addConstraint(Sketcher.Constraint("Horizontal", 2, 2, 4, 2))
sketch13.addConstraint(Sketcher.Constraint("Horizontal", 3, 2, 5, 1))
sketch13.addConstraint(Sketcher.Constraint("Radius", 1, Q("10.5 mm")))
sketch13.addConstraint(Sketcher.Constraint("DistanceY", 3, 1, 3, 2, Q("20 mm")))
sketch13.addConstraint(Sketcher.Constraint("DistanceX", -1, 1, 2, 2, Q("30 mm")))
sketch13.setExpression("Constraints[20]", "Params.sketch13_radius")
sketch13.setExpression("Constraints[21]", "Params.sketch13_height")
pad5 = body.newObject("PartDesign::Pad", "Pad004")
pad5.Profile = sketch13
pad5.setExpression("Length", "Params.pad5_length")

sketch14 = body.newObject("Sketcher::SketchObject", "Sketch013")
sketch14.AttachmentSupport = (doc.getObject("XZ_Plane"), [""])
sketch14.MapMode = "FlatFace"
sketch14.AttachmentOffset = App.Placement(V(0, 0, -2), App.Rotation())
sketch14.addGeometry(Part.LineSegment(V(3.2, 10, 0), V(-3.2, 10, 0)), False)
sketch14.addGeometry(Part.ArcOfCircle(Part.Circle(V(0, 0, 0), V(0, 0, 1), 10.5), math.radians(108), math.radians(252)), False)
sketch14.addGeometry(Part.LineSegment(V(-3.2, -10, 0), V(3.2, -10, 0)), False)
sketch14.addGeometry(Part.ArcOfCircle(Part.Circle(V(0, 0, 0), V(0, 0, 1), 10.5), math.radians(-72), math.radians(72)), False)
sketch14.addGeometry(Part.Circle(V(0, -7, 0), V(0, 0, 1), 1.5), False)
sketch14.addGeometry(Part.Circle(V(-7, 0, 0), V(0, 0, 1), 1.5), False)
sketch14.addGeometry(Part.Circle(V(0, 0, 0), V(0, 0, 1), 3), False)
sketch14.addGeometry(Part.Circle(V(7, 0, 0), V(0, 0, 1), 1.5), False)
sketch14.addGeometry(Part.Circle(V(0, 7, 0), V(0, 0, 1), 1.5), False)
sketch14.addConstraint(Sketcher.Constraint("Coincident", 0, 2, 1, 1))
sketch14.addConstraint(Sketcher.Constraint("Coincident", 1, 2, 2, 1))
sketch14.addConstraint(Sketcher.Constraint("Coincident", 2, 2, 3, 1))
sketch14.addConstraint(Sketcher.Constraint("Coincident", 3, 2, 0, 1))
sketch14.addConstraint(Sketcher.Constraint("Horizontal", 0))
sketch14.addConstraint(Sketcher.Constraint("Horizontal", 2))
sketch14.addConstraint(Sketcher.Constraint("Coincident", 1, 3, -1, 1))
sketch14.addConstraint(Sketcher.Constraint("Coincident", 3, 3, -1, 1))
sketch14.addConstraint(Sketcher.Constraint("Coincident", 6, 3, -1, 1))
sketch14.addConstraint(Sketcher.Constraint("Equal", 1, 3))
sketch14.addConstraint(Sketcher.Constraint("Equal", 4, 5))
sketch14.addConstraint(Sketcher.Constraint("Equal", 5, 7))
sketch14.addConstraint(Sketcher.Constraint("Equal", 7, 8))
sketch14.addConstraint(Sketcher.Constraint("Symmetric", 5, 3, 7, 3, -1, 1))
sketch14.addConstraint(Sketcher.Constraint("Symmetric", 4, 3, 8, 3, -1, 1))
sketch14.addConstraint(Sketcher.Constraint("PointOnObject", 4, 3, -2))
sketch14.addConstraint(Sketcher.Constraint("PointOnObject", 5, 3, -1))
sketch14.addConstraint(Sketcher.Constraint("Vertical", 0, 2, 1, 2))
sketch14.addConstraint(Sketcher.Constraint("Diameter", 4, Q("3 mm")))
sketch14.addConstraint(Sketcher.Constraint("Diameter", 6, Q("6 mm")))
sketch14.addConstraint(Sketcher.Constraint("Radius", 1, Q("10.5 mm")))
sketch14.addConstraint(Sketcher.Constraint("DistanceY", 4, 3, -1, 1, Q("7 mm")))
sketch14.addConstraint(Sketcher.Constraint("DistanceX", 5, 3, -1, 1, Q("7 mm")))
sketch14.addConstraint(Sketcher.Constraint("DistanceY", -1, 1, 0, 2, Q("10 mm")))
sketch14.setExpression("Constraints[18]", "Params.sketch14_diameter")
sketch14.setExpression("Constraints[19]", "Params.sketch14_diameter2")
sketch14.setExpression("Constraints[20]", "Params.sketch14_radius")
pad6 = body.newObject("PartDesign::Pad", "Pad005")
pad6.Profile = sketch14
pad6.setExpression("Length", "Params.pad6_length")

sketch15 = body.newObject("Sketcher::SketchObject", "Sketch014")
sketch15.AttachmentSupport = (doc.getObject("YZ_Plane"), [""])
sketch15.MapMode = "FlatFace"
sketch15.AttachmentOffset = App.Placement(V(0, 0, 30), App.Rotation())
sketch15.addGeometry(Part.LineSegment(V(28, 10, 0), V(-2, 10, 0)), False)
sketch15.addGeometry(Part.LineSegment(V(-2, 10, 0), V(-2, -10, 0)), False)
sketch15.addGeometry(Part.LineSegment(V(-2, -10, 0), V(28, -10, 0)), False)
sketch15.addGeometry(Part.ArcOfCircle(Part.Circle(V(28, 0, 0), V(0, 0, 1), 10), math.radians(-90), math.radians(90)), False)
sketch15.addGeometry(Part.Circle(V(21, 0, 0), V(0, 0, 1), 1.5), False)
sketch15.addGeometry(Part.Circle(V(28, 7, 0), V(0, 0, 1), 1.5), False)
sketch15.addGeometry(Part.Circle(V(28, 0, 0), V(0, 0, 1), 3), False)
sketch15.addGeometry(Part.Circle(V(28, -7, 0), V(0, 0, 1), 1.5), False)
sketch15.addGeometry(Part.Circle(V(35, 0, 0), V(0, 0, 1), 1.5), False)
sketch15.addConstraint(Sketcher.Constraint("Coincident", 0, 2, 1, 1))
sketch15.addConstraint(Sketcher.Constraint("Coincident", 1, 2, 2, 1))
sketch15.addConstraint(Sketcher.Constraint("Tangent", 2, 2, 3, 1))
sketch15.addConstraint(Sketcher.Constraint("Tangent", 3, 2, 0, 1))
sketch15.addConstraint(Sketcher.Constraint("Horizontal", 0))
sketch15.addConstraint(Sketcher.Constraint("Vertical", 1))
sketch15.addConstraint(Sketcher.Constraint("Horizontal", 2))
sketch15.addConstraint(Sketcher.Constraint("Coincident", 6, 3, 3, 3))
sketch15.addConstraint(Sketcher.Constraint("Equal", 4, 5))
sketch15.addConstraint(Sketcher.Constraint("Equal", 5, 7))
sketch15.addConstraint(Sketcher.Constraint("Equal", 7, 8))
sketch15.addConstraint(Sketcher.Constraint("Symmetric", 5, 3, 7, 3, -1))
sketch15.addConstraint(Sketcher.Constraint("PointOnObject", 3, 3, -1))
sketch15.addConstraint(Sketcher.Constraint("PointOnObject", 4, 3, -1))
sketch15.addConstraint(Sketcher.Constraint("PointOnObject", 8, 3, -1))
sketch15.addConstraint(Sketcher.Constraint("Vertical", 3, 3, 5, 3))
sketch15.addConstraint(Sketcher.Constraint("Diameter", 4, Q("3 mm")))
sketch15.addConstraint(Sketcher.Constraint("Diameter", 6, Q("6 mm")))
sketch15.addConstraint(Sketcher.Constraint("Radius", 3, Q("10 mm")))
sketch15.addConstraint(Sketcher.Constraint("DistanceX", 0, 2, 0, 1, Q("30 mm")))
sketch15.addConstraint(Sketcher.Constraint("DistanceX", -1, 1, 3, 3, Q("28 mm")))
sketch15.addConstraint(Sketcher.Constraint("DistanceX", -1, 1, 4, 3, Q("21 mm")))
sketch15.addConstraint(Sketcher.Constraint("DistanceY", -1, 1, 5, 3, Q("7 mm")))
sketch15.addConstraint(Sketcher.Constraint("DistanceX", -1, 1, 8, 3, Q("35 mm")))
sketch15.setExpression("Constraints[16]", "Params.sketch15_diameter")
sketch15.setExpression("Constraints[17]", "Params.sketch15_diameter2")
sketch15.setExpression("Constraints[18]", "Params.sketch15_radius")
sketch15.setExpression("Constraints[19]", "Params.sketch15_width")
pad7 = body.newObject("PartDesign::Pad", "Pad006")
pad7.Profile = sketch15
pad7.setExpression("Length", "Params.pad7_length")

sketch16 = body.newObject("Sketcher::SketchObject", "Sketch015")
sketch16.AttachmentSupport = (doc.getObject("YZ_Plane"), [""])
sketch16.MapMode = "FlatFace"
sketch16.AttachmentOffset = App.Placement(V(0, 0, -30), App.Rotation())
sketch16.addGeometry(Part.LineSegment(V(28, -10, 0), V(-2, -10, 0)), False)
sketch16.addGeometry(Part.LineSegment(V(-2, -10, 0), V(-2, 10, 0)), False)
sketch16.addGeometry(Part.LineSegment(V(-2, 10, 0), V(28, 10, 0)), False)
sketch16.addGeometry(Part.ArcOfCircle(Part.Circle(V(28, 0, 0), V(0, 0, 1), 10), math.radians(-90), math.radians(90)), False)
sketch16.addGeometry(Part.Circle(V(21, 0, 0), V(0, 0, 1), 1.5), False)
sketch16.addGeometry(Part.Circle(V(28, -7, 0), V(0, 0, 1), 1.5), False)
sketch16.addGeometry(Part.Circle(V(28, 0, 0), V(0, 0, 1), 3), False)
sketch16.addGeometry(Part.Circle(V(28, 7, 0), V(0, 0, 1), 1.5), False)
sketch16.addGeometry(Part.Circle(V(35, 0, 0), V(0, 0, 1), 1.5), False)
sketch16.addConstraint(Sketcher.Constraint("Coincident", 0, 2, 1, 1))
sketch16.addConstraint(Sketcher.Constraint("Coincident", 1, 2, 2, 1))
sketch16.addConstraint(Sketcher.Constraint("Tangent", 2, 2, 3, 2))
sketch16.addConstraint(Sketcher.Constraint("Tangent", 3, 1, 0, 1))
sketch16.addConstraint(Sketcher.Constraint("Horizontal", 0))
sketch16.addConstraint(Sketcher.Constraint("Vertical", 1))
sketch16.addConstraint(Sketcher.Constraint("Horizontal", 2))
sketch16.addConstraint(Sketcher.Constraint("Coincident", 6, 3, 3, 3))
sketch16.addConstraint(Sketcher.Constraint("Equal", 4, 5))
sketch16.addConstraint(Sketcher.Constraint("Equal", 5, 7))
sketch16.addConstraint(Sketcher.Constraint("Equal", 7, 8))
sketch16.addConstraint(Sketcher.Constraint("Symmetric", 5, 3, 7, 3, -1))
sketch16.addConstraint(Sketcher.Constraint("PointOnObject", 3, 3, -1))
sketch16.addConstraint(Sketcher.Constraint("PointOnObject", 4, 3, -1))
sketch16.addConstraint(Sketcher.Constraint("PointOnObject", 8, 3, -1))
sketch16.addConstraint(Sketcher.Constraint("Vertical", 3, 3, 5, 3))
sketch16.addConstraint(Sketcher.Constraint("Diameter", 4, Q("3 mm")))
sketch16.addConstraint(Sketcher.Constraint("Diameter", 6, Q("6 mm")))
sketch16.addConstraint(Sketcher.Constraint("Radius", 3, Q("10 mm")))
sketch16.addConstraint(Sketcher.Constraint("DistanceX", 0, 2, 0, 1, Q("30 mm")))
sketch16.addConstraint(Sketcher.Constraint("DistanceX", -1, 1, 3, 3, Q("28 mm")))
sketch16.addConstraint(Sketcher.Constraint("DistanceX", -1, 1, 4, 3, Q("21 mm")))
sketch16.addConstraint(Sketcher.Constraint("DistanceY", 5, 3, -1, 1, Q("7 mm")))
sketch16.addConstraint(Sketcher.Constraint("DistanceX", -1, 1, 8, 3, Q("35 mm")))
sketch16.setExpression("Constraints[16]", "Params.sketch16_diameter")
sketch16.setExpression("Constraints[17]", "Params.sketch16_diameter2")
sketch16.setExpression("Constraints[18]", "Params.sketch16_radius")
sketch16.setExpression("Constraints[19]", "Params.sketch16_width")
pad8 = body.newObject("PartDesign::Pad", "Pad007")
pad8.Profile = sketch16
pad8.setExpression("Length", "Params.pad8_length")
pad8.Reversed = True

doc.recompute()
